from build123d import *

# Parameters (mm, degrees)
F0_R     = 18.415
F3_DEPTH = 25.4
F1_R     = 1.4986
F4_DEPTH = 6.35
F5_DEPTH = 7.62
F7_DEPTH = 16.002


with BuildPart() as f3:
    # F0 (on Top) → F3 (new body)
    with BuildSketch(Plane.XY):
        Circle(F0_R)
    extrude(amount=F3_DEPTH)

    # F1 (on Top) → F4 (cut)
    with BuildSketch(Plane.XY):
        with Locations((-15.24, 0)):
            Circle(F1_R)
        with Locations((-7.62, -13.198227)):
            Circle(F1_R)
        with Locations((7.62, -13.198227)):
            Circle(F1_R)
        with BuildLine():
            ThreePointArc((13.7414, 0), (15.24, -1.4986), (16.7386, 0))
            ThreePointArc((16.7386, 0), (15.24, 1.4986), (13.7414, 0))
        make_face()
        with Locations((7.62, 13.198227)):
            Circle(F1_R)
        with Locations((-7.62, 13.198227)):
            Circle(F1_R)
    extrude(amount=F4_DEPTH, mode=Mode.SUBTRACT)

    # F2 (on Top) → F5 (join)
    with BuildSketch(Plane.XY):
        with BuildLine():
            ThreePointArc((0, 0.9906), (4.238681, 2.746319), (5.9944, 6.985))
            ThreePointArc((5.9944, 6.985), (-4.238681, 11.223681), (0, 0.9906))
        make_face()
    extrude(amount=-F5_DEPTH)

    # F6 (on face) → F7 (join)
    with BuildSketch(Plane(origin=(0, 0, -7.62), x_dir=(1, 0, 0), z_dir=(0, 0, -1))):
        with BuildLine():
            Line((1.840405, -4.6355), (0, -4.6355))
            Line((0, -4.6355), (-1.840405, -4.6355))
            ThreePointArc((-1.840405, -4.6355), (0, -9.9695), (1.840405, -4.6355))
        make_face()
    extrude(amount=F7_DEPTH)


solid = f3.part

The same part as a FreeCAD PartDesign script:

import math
import FreeCAD as App
import Part
import Sketcher

V = App.Vector
Q = App.Units.Quantity

doc = App.newDocument("Part")
body = doc.addObject("PartDesign::Body", "Body")

sketch1 = body.newObject("Sketcher::SketchObject", "Sketch")
sketch1.AttachmentSupport = (doc.getObject("XY_Plane"), [""])
sketch1.MapMode = "FlatFace"
sketch1.addGeometry(Part.Circle(V(0, 0, 0), V(0, 0, 1), 18.415), False)
sketch1.addConstraint([
    Sketcher.Constraint("Coincident", 0, 3, -1, 1),
    Sketcher.Constraint("Diameter", 0, Q("1.45 in")),
])
pad1 = body.newObject("PartDesign::Pad", "Pad")
pad1.Profile = sketch1
pad1.Length = Q("1 in")

sketch2 = body.newObject("Sketcher::SketchObject", "Sketch001")
sketch2.AttachmentSupport = (doc.getObject("XY_Plane"), [""])
sketch2.MapMode = "FlatFace"
sketch2.addGeometry([
    Part.Circle(V(-15.24, 0, 0), V(0, 0, 1), 1.4986),
    Part.Circle(V(-7.62, -13.198227, 0), V(0, 0, 1), 1.4986),
    Part.Circle(V(7.62, -13.198227, 0), V(0, 0, 1), 1.4986),
    Part.Circle(V(15.24, 0, 0), V(0, 0, 1), 1.4986),
    Part.Circle(V(7.62, 13.198227, 0), V(0, 0, 1), 1.4986),
    Part.Circle(V(-7.62, 13.198227, 0), V(0, 0, 1), 1.4986),
], False)
sketch2.addConstraint([
    Sketcher.Constraint("Equal", 0, 1),
    Sketcher.Constraint("Equal", 1, 2),
    Sketcher.Constraint("Equal", 2, 3),
    Sketcher.Constraint("Equal", 3, 4),
    Sketcher.Constraint("Equal", 4, 5),
    Sketcher.Constraint("Symmetric", 0, 3, 3, 3, -1, 1),
    Sketcher.Constraint("Symmetric", 1, 3, 4, 3, -1, 1),
    Sketcher.Constraint("Symmetric", 2, 3, 5, 3, -1, 1),
    Sketcher.Constraint("Symmetric", 1, 3, 2, 3, -2),
    Sketcher.Constraint("PointOnObject", 0, 3, -1),
    Sketcher.Constraint("Diameter", 0, Q("0.118 in")),
    Sketcher.Constraint("DistanceX", 0, 3, -1, 1, Q("0.6 in")),
    Sketcher.Constraint("DistanceX", 1, 3, -1, 1, Q("0.3 in")),
    Sketcher.Constraint("DistanceY", 1, 3, -1, 1, 13.198227),
])
pocket1 = body.newObject("PartDesign::Pocket", "Pocket")
pocket1.Profile = sketch2
pocket1.Length = Q("0.25 in")
pocket1.Reversed = True

sketch3 = body.newObject("Sketcher::SketchObject", "Sketch002")
sketch3.AttachmentSupport = (doc.getObject("XY_Plane"), [""])
sketch3.MapMode = "FlatFace"
sketch3.addGeometry([
    Part.ArcOfCircle(Part.Circle(V(0, 6.985, 0), V(0, 0, 1), 5.9944), math.radians(-90.000004), math.radians(0.000004)),
    Part.ArcOfCircle(Part.Circle(V(0, 6.985, 0), V(0, 0, 1), 5.9944), math.radians(-0.000001), math.radians(270.000001)),
], False)
sketch3.addConstraint([
    Sketcher.Constraint("Tangent", 0, 1, 1, 2),
    Sketcher.Constraint("Coincident", 1, 1, 0, 2),
    Sketcher.Constraint("PointOnObject", 0, 3, -2),
    Sketcher.Constraint("PointOnObject", 0, 1, -2),
    Sketcher.Constraint("Horizontal", 0, 3, 1, 1),
    Sketcher.Constraint("Radius", 0, Q("0.236 in")),
    Sketcher.Constraint("DistanceY", -1, 1, 0, 3, Q("0.275 in")),
])
pad2 = body.newObject("PartDesign::Pad", "Pad001")
pad2.Profile = sketch3
pad2.Length = Q("0.3 in")
pad2.Reversed = True

sketch4 = body.newObject("Sketcher::SketchObject", "Sketch003")
sketch4.AttachmentSupport = (doc.getObject("XY_Plane"), [""])
sketch4.MapMode = "FlatFace"
sketch4.AttachmentOffset = App.Placement(V(0, 0, -0.3 * 25.4), App.Rotation())
sketch4.addGeometry([
    Part.LineSegment(V(1.840405, 4.6355, 0), V(-1.840405, 4.6355, 0)),
    Part.ArcOfCircle(Part.Circle(V(0, 6.985, 0), V(0, 0, 1), 2.9845), math.radians(-51.927772), math.radians(231.927772)),
], False)
sketch4.addConstraint([
    Sketcher.Constraint("Coincident", 0, 1, 1, 1),
    Sketcher.Constraint("Coincident", 1, 2, 0, 2),
    Sketcher.Constraint("Horizontal", 0),
    Sketcher.Constraint("PointOnObject", 1, 3, -2),
    Sketcher.Constraint("Radius", 1, Q("0.1175 in")),
    Sketcher.Constraint("DistanceY", -1, 1, 1, 3, Q("0.275 in")),
    Sketcher.Constraint("DistanceY", -1, 1, 0, 1, Q("0.1825 in")),
])
pad3 = body.newObject("PartDesign::Pad", "Pad002")
pad3.Profile = sketch4
pad3.Length = Q("0.63 in")
pad3.Reversed = True

doc.recompute()
